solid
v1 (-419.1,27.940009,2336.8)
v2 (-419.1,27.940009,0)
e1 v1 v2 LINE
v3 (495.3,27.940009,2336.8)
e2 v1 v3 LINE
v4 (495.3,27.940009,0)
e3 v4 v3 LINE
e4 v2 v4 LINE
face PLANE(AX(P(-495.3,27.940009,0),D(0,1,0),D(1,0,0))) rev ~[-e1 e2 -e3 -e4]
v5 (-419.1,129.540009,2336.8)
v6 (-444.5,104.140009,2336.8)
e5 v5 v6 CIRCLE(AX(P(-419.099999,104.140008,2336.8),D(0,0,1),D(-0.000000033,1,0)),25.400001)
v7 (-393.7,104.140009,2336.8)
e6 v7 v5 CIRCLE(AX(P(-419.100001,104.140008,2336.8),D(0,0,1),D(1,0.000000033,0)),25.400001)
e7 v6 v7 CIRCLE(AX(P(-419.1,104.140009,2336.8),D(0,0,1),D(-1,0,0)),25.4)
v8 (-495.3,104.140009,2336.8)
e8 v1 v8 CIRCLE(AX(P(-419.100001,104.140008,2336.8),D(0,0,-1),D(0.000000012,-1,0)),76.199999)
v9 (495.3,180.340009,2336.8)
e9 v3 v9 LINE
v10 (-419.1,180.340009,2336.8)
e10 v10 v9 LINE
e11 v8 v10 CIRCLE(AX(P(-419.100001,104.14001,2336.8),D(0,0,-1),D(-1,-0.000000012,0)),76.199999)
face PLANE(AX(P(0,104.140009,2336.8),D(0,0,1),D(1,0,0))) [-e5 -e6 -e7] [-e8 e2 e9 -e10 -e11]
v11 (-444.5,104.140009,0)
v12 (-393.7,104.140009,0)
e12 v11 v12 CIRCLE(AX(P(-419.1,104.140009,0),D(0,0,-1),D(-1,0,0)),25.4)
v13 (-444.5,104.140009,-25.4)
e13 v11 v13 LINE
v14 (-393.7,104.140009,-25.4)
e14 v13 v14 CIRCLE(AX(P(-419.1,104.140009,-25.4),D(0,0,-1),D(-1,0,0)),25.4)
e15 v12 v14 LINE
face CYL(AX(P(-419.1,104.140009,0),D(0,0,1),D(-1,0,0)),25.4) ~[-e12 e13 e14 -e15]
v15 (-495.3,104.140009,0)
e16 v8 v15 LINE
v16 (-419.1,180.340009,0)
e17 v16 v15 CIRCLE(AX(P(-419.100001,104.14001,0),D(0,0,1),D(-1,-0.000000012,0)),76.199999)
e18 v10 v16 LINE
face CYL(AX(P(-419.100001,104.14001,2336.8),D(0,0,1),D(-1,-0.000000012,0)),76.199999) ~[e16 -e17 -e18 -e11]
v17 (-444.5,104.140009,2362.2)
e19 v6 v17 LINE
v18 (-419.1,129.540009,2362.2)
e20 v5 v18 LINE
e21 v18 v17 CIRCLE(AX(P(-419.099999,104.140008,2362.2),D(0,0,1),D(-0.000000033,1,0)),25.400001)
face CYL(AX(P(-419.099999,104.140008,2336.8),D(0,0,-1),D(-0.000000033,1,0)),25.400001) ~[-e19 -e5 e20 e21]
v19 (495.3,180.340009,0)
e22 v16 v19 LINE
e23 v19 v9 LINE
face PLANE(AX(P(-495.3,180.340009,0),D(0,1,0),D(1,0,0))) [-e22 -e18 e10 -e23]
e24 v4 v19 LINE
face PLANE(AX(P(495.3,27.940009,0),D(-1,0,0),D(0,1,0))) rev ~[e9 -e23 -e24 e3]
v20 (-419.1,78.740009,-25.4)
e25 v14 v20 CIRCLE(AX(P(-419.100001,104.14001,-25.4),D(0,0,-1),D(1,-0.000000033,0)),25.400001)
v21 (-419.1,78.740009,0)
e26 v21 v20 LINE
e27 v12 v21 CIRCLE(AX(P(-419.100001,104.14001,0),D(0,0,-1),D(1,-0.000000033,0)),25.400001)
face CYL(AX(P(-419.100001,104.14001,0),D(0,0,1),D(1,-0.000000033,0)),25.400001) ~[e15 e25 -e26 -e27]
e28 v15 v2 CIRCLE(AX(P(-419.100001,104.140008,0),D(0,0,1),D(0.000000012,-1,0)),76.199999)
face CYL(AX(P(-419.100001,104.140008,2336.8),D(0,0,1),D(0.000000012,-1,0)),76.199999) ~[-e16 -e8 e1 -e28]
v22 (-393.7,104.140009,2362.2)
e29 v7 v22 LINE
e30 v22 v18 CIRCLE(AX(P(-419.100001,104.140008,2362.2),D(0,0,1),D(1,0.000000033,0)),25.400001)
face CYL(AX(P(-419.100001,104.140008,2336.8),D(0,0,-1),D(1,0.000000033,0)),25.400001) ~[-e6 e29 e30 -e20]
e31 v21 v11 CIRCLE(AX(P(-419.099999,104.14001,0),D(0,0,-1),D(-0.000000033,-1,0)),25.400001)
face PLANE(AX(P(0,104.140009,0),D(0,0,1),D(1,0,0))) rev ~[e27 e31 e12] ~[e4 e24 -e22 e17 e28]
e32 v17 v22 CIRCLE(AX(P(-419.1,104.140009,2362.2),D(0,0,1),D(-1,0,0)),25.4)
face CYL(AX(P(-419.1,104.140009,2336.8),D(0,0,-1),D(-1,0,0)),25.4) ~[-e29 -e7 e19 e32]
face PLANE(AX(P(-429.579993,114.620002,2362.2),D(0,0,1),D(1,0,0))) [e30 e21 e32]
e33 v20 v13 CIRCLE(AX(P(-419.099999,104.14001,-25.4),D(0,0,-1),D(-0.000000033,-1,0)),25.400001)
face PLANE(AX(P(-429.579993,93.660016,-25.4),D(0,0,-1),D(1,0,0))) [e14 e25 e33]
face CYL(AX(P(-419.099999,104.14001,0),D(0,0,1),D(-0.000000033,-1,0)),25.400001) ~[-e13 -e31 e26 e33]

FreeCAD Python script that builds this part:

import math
import FreeCAD as App
import Part
import Sketcher
Q = App.Units.Quantity


def add_polygon(sketch, points):
    """Adds a closed chain of lines whose ends are joined by coincident constraints."""
    first, n = sketch.GeometryCount, len(points)
    for a, b in zip(points, points[1:] + points[:1]):
        sketch.addGeometry(Part.LineSegment(App.Vector(*a, 0), App.Vector(*b, 0)), False)
    for i in range(n):
        sketch.addConstraint(Sketcher.Constraint("Coincident", first + i, 2, first + (i + 1) % n, 1))

doc = App.newDocument("Part")
body = doc.addObject("PartDesign::Body", "Body")

# Sketch on XY plane
sketch1 = body.newObject("Sketcher::SketchObject", "Sketch")
sketch1.AttachmentSupport = (doc.getObject("XY_Plane"), [""])
sketch1.MapMode = "FlatFace"
add_polygon(sketch1, [(-495, 180), (-495, 28), (495, 28), (495, 180)])  # lines 0-3
sketch1.addConstraint([
    Sketcher.Constraint("Vertical", 0),
    Sketcher.Constraint("Horizontal", 1),
    Sketcher.Constraint("Vertical", 2),
    Sketcher.Constraint("Horizontal", 3),
    Sketcher.Constraint("DistanceX", 1, 1, 1, 2, Q("39 in")),
    Sketcher.Constraint("DistanceY", 0, 2, 0, 1, Q("6 in")),
    Sketcher.Constraint("DistanceX", 0, 2, -1, 1, Q("19.5 in")),
    Sketcher.Constraint("DistanceY", -1, 1, 0, 2, Q("27.940009 mm")),
])
pad1 = body.newObject("PartDesign::Pad", "Pad")
pad1.Profile = sketch1
pad1.Length = Q("92 in")

# Sketch on XY plane
sketch2 = body.newObject("Sketcher::SketchObject", "Sketch001")
sketch2.AttachmentSupport = (doc.getObject("XY_Plane"), [""])
sketch2.MapMode = "FlatFace"
sketch2.AttachmentOffset = App.Placement(App.Vector(0, 0, 92 * 25.4), App.Rotation())
sketch2.addGeometry([
    Part.ArcOfCircle(Part.Circle(App.Vector(-419, 104, 0), App.Vector(0, 0, 1), 25), math.radians(90), math.radians(180)),
    Part.ArcOfCircle(Part.Circle(App.Vector(-419, 104, 0), App.Vector(0, 0, 1), 25), math.radians(180), math.radians(360)),
    Part.ArcOfCircle(Part.Circle(App.Vector(-419, 104, 0), App.Vector(0, 0, 1), 25), math.radians(0), math.radians(90)),
], False)
sketch2.addConstraint([
    Sketcher.Constraint("Tangent", 0, 2, 1, 1),
    Sketcher.Constraint("Tangent", 1, 2, 2, 1),
    Sketcher.Constraint("Tangent", 2, 2, 0, 1),
    Sketcher.Constraint("Horizontal", 2, 3, 0, 2),
    Sketcher.Constraint("Horizontal", 0, 2, 1, 2),
    Sketcher.Constraint("Vertical", 1, 3, 2, 2),
    Sketcher.Constraint("Radius", 0, Q("1 in")),
    Sketcher.Constraint("DistanceX", 0, 3, -1, 1, Q("16.5 in")),
    Sketcher.Constraint("DistanceY", -1, 1, 0, 3, Q("104.140008 mm")),
])
pad2 = body.newObject("PartDesign::Pad", "Pad001")
pad2.Profile = sketch2
pad2.Length = Q("1 in")

# Sketch on XY plane
sketch3 = body.newObject("Sketcher::SketchObject", "Sketch002")
sketch3.AttachmentSupport = (doc.getObject("XY_Plane"), [""])
sketch3.MapMode = "FlatFace"
sketch3.addGeometry([
    Part.ArcOfCircle(Part.Circle(App.Vector(-419, 104, 0), App.Vector(0, 0, 1), 25), math.radians(-180), math.radians(-90)),
    Part.ArcOfCircle(Part.Circle(App.Vector(-419, 104, 0), App.Vector(0, 0, 1), 25), math.radians(0), math.radians(180)),
    Part.ArcOfCircle(Part.Circle(App.Vector(-419, 104, 0), App.Vector(0, 0, 1), 25), math.radians(-90), math.radians(0)),
], False)
sketch3.addConstraint([
    Sketcher.Constraint("Tangent", 0, 1, 1, 2),
    Sketcher.Constraint("Tangent", 1, 1, 2, 2),
    Sketcher.Constraint("Tangent", 2, 1, 0, 2),
    Sketcher.Constraint("Horizontal", 2, 3, 0, 1),
    Sketcher.Constraint("Horizontal", 0, 1, 1, 1),
    Sketcher.Constraint("Vertical", 1, 3, 2, 1),
    Sketcher.Constraint("Radius", 0, Q("1 in")),
    Sketcher.Constraint("DistanceX", 0, 3, -1, 1, Q("16.5 in")),
    Sketcher.Constraint("DistanceY", -1, 1, 0, 3, Q("104.14001 mm")),
])
pad3 = body.newObject("PartDesign::Pad", "Pad002")
pad3.Profile = sketch3
pad3.Length = Q("1 in")
pad3.Reversed = True

# Sketch on XY plane
sketch4 = body.newObject("Sketcher::SketchObject", "Sketch003")
sketch4.AttachmentSupport = (doc.getObject("XY_Plane"), [""])
sketch4.MapMode = "FlatFace"
sketch4.AttachmentOffset = App.Placement(App.Vector(0, 0, 92 * 25.4), App.Rotation())
sketch4.addGeometry([
    Part.LineSegment(App.Vector(-495, 28, 0), App.Vector(-419, 28, 0)),  # 0
    Part.ArcOfCircle(Part.Circle(App.Vector(-419, 104, 0), App.Vector(0, 0, 1), 76), math.radians(180), math.radians(270)),  # 1
    Part.LineSegment(App.Vector(-495, 104, 0), App.Vector(-495, 28, 0)),  # 2
    Part.ArcOfCircle(Part.Circle(App.Vector(-419, 104, 0), App.Vector(0, 0, 1), 76), math.radians(90), math.radians(180)),  # 3
    Part.LineSegment(App.Vector(-419, 180, 0), App.Vector(-495, 180, 0)),  # 4
    Part.LineSegment(App.Vector(-495, 180, 0), App.Vector(-495, 104, 0)),  # 5
], False)
sketch4.addConstraint([
    Sketcher.Constraint("Tangent", 0, 2, 1, 2),
    Sketcher.Constraint("Tangent", 1, 1, 2, 1),
    Sketcher.Constraint("Coincident", 2, 2, 0, 1),
    Sketcher.Constraint("Tangent", 3, 1, 4, 1),
    Sketcher.Constraint("Coincident", 4, 2, 5, 1),
    Sketcher.Constraint("Tangent", 5, 2, 3, 2),
    Sketcher.Constraint("Horizontal", 0),
    Sketcher.Constraint("Vertical", 2),
    Sketcher.Constraint("Horizontal", 4),
    Sketcher.Constraint("Vertical", 5),
    Sketcher.Constraint("Coincident", 3, 3, 1, 3),
    Sketcher.Constraint("Equal", 1, 3),
    Sketcher.Constraint("Radius", 1, Q("3 in")),
    Sketcher.Constraint("DistanceX", 1, 3, -1, 1, Q("16.5 in")),
    Sketcher.Constraint("DistanceY", -1, 1, 1, 3, Q("104.140008 mm")),
])
pocket1 = body.newObject("PartDesign::Pocket", "Pocket")
pocket1.Profile = sketch4
pocket1.Length = Q("94 in")

doc.recompute()
